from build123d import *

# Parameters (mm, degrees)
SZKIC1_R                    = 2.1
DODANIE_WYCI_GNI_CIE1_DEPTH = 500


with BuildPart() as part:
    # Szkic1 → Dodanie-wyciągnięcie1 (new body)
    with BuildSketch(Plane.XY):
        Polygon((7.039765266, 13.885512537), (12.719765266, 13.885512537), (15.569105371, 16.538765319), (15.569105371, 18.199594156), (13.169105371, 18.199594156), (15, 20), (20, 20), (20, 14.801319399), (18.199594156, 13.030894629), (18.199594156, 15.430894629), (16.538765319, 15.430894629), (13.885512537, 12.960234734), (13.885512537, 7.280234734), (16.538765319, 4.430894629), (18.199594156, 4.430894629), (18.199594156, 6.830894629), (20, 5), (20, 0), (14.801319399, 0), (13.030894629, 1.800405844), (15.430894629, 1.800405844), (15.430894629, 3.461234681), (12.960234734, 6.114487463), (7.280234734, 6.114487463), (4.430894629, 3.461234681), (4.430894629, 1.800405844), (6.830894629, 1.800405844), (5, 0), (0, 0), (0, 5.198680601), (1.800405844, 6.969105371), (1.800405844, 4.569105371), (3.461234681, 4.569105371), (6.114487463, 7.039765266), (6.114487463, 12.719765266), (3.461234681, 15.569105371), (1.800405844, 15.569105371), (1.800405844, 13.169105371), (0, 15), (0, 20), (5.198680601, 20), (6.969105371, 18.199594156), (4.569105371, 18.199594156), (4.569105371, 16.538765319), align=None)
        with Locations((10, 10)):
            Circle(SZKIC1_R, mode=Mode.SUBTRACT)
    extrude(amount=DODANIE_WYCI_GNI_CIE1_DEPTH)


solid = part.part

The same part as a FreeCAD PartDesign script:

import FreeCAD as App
import Part
import Sketcher

V = App.Vector
Q = App.Units.Quantity


def add_polygon(sketch, points):
    """Adds a closed chain of lines whose ends are joined by coincident constraints."""
    first, n = sketch.GeometryCount, len(points)
    for a, b in zip(points, points[1:] + points[:1]):
        sketch.addGeometry(Part.LineSegment(App.Vector(*a, 0), App.Vector(*b, 0)), False)
    for i in range(n):
        sketch.addConstraint(Sketcher.Constraint("Coincident", first + i, 2, first + (i + 1) % n, 1))

doc = App.newDocument("Part")
body = doc.addObject("PartDesign::Body", "Body")

# Sketch on XY plane
sketch1 = body.newObject("Sketcher::SketchObject", "Sketch")
sketch1.AttachmentSupport = (doc.getObject("XY_Plane"), [""])
sketch1.MapMode = "FlatFace"
add_polygon(sketch1, [(12.7, 13.9), (7, 13.9), (4.6, 16.5), (4.6, 18.2), (7, 18.2), (5.2, 20), (0, 20), (0, 15), (1.8, 13.2), (1.8, 15.6), (3.5, 15.6), (6.1, 12.7), (6.1, 7), (3.5, 4.6), (1.8, 4.6), (1.8, 7), (0, 5.2), (0, 0), (5, 0), (6.8, 1.8), (4.4, 1.8), (4.4, 3.5), (7.3, 6.1), (13, 6.1), (15.4, 3.5), (15.4, 1.8), (13, 1.8), (14.8, 0), (20, 0), (20, 5), (18.2, 6.8), (18.2, 4.4), (16.5, 4.4), (13.9, 7.3), (13.9, 13), (16.5, 15.4), (18.2, 15.4), (18.2, 13), (20, 14.8), (20, 20), (15, 20), (13.2, 18.2), (15.6, 18.2), (15.6, 16.5)])  # lines 0-43
sketch1.addGeometry(Part.Circle(V(10, 10, 0), V(0, 0, 1), 2.1), False)  # 44
sketch1.addConstraint([
    Sketcher.Constraint("Horizontal", 0),
    Sketcher.Constraint("Vertical", 2),
    Sketcher.Constraint("Horizontal", 3),
    Sketcher.Constraint("Horizontal", 5),
    Sketcher.Constraint("Vertical", 6),
    Sketcher.Constraint("Vertical", 8),
    Sketcher.Constraint("Horizontal", 9),
    Sketcher.Constraint("Vertical", 11),
    Sketcher.Constraint("Horizontal", 13),
    Sketcher.Constraint("Vertical", 14),
    Sketcher.Constraint("Vertical", 16),
    Sketcher.Constraint("Horizontal", 17),
    Sketcher.Constraint("Horizontal", 19),
    Sketcher.Constraint("Vertical", 20),
    Sketcher.Constraint("Horizontal", 22),
    Sketcher.Constraint("Vertical", 24),
    Sketcher.Constraint("Horizontal", 25),
    Sketcher.Constraint("Horizontal", 27),
    Sketcher.Constraint("Vertical", 28),
    Sketcher.Constraint("Vertical", 30),
    Sketcher.Constraint("Horizontal", 31),
    Sketcher.Constraint("Vertical", 33),
    Sketcher.Constraint("Horizontal", 35),
    Sketcher.Constraint("Vertical", 36),
    Sketcher.Constraint("Vertical", 38),
    Sketcher.Constraint("Horizontal", 39),
    Sketcher.Constraint("Horizontal", 41),
    Sketcher.Constraint("Vertical", 42),
    Sketcher.Constraint("Coincident", 16, 2, -1, 1),
    Sketcher.Constraint("PointOnObject", 5, 2, -2),
    Sketcher.Constraint("PointOnObject", 26, 2, -1),
    Sketcher.Constraint("Parallel", 4, 7),
    Sketcher.Constraint("Parallel", 1, 10),
    Sketcher.Constraint("Perpendicular", 10, 12),
    Sketcher.Constraint("Perpendicular", 7, 15),
    Sketcher.Constraint("Parallel", 15, 18),
    Sketcher.Constraint("Parallel", 12, 21),
    Sketcher.Constraint("Perpendicular", 21, 23),
    Sketcher.Constraint("Perpendicular", 18, 26),
    Sketcher.Constraint("Parallel", 26, 29),
    Sketcher.Constraint("Parallel", 23, 32),
    Sketcher.Constraint("Perpendicular", 32, 34),
    Sketcher.Constraint("Perpendicular", 29, 37),
    Sketcher.Constraint("Parallel", 37, 40),
    Sketcher.Constraint("Parallel", 34, 43),
    Sketcher.Constraint("Horizontal", 20, 2, 23, 2),
    Sketcher.Constraint("Horizontal", 19, 2, 24, 2),
    Sketcher.Constraint("Horizontal", 5, 2, 38, 2),
    Sketcher.Constraint("Horizontal", 3, 2, 40, 2),
    Sketcher.Constraint("Horizontal", 1, 2, 42, 2),
    Sketcher.Constraint("Vertical", 9, 2, 12, 2),
    Sketcher.Constraint("Vertical", 8, 2, 13, 2),
    Sketcher.Constraint("Vertical", 31, 2, 34, 2),
    Sketcher.Constraint("Vertical", 30, 2, 35, 2),
    Sketcher.Constraint("Vertical", 28, 2, 37, 2),
    Sketcher.Constraint("Equal", 3, 19),
    Sketcher.Constraint("Equal", 0, 22),
    Sketcher.Constraint("Equal", 19, 25),
    Sketcher.Constraint("Equal", 5, 27),
    Sketcher.Constraint("Equal", 13, 31),
    Sketcher.Constraint("Equal", 17, 39),
    Sketcher.Constraint("Equal", 25, 41),
    Sketcher.Constraint("Equal", 35, 2),
    Sketcher.Constraint("Equal", 39, 6),
    Sketcher.Constraint("Equal", 41, 8),
    Sketcher.Constraint("Equal", 22, 11),
    Sketcher.Constraint("Equal", 8, 14),
    Sketcher.Constraint("Equal", 27, 16),
    Sketcher.Constraint("Equal", 2, 20),
    Sketcher.Constraint("Equal", 6, 28),
    Sketcher.Constraint("Equal", 14, 30),
    Sketcher.Constraint("Equal", 11, 33),
    Sketcher.Constraint("Equal", 30, 36),
    Sketcher.Constraint("Equal", 16, 38),
    Sketcher.Constraint("Equal", 1, 12),
    Sketcher.Constraint("Equal", 4, 15),
    Sketcher.Constraint("Equal", 7, 18),
    Sketcher.Constraint("Equal", 18, 29),
    Sketcher.Constraint("Diameter", 44, Q("4.2 mm")),
    Sketcher.Constraint("DistanceX", 17, 1, 17, 2, Q("5 mm")),
    Sketcher.Constraint("DistanceX", 3, 1, 3, 2, Q("2.4 mm")),
    Sketcher.Constraint("DistanceX", -1, 1, 44, 3, Q("10 mm")),
    Sketcher.Constraint("DistanceY", -1, 1, 44, 3, Q("10 mm")),
    Sketcher.Constraint("DistanceY", -1, 1, 4, 2, Q("20 mm")),
    Sketcher.Constraint("DistanceX", 0, 2, 0, 1, Q("5.68 mm")),
    Sketcher.Constraint("DistanceY", 12, 2, 7, 2, Q("8.6 mm")),
    Sketcher.Constraint("DistanceY", 10, 2, 1, 2, Q("3.819 mm")),
    Sketcher.Constraint("DistanceX", 5, 2, 5, 1, Q("5.198681 mm")),
    Sketcher.Constraint("DistanceX", 9, 1, 9, 2, Q("1.660829 mm")),
    Sketcher.Constraint("DistanceX", 7, 2, 1, 2, Q("2.7687 mm")),
])
pad1 = body.newObject("PartDesign::Pad", "Pad")
pad1.Profile = sketch1
pad1.Length = 500

doc.recompute()
